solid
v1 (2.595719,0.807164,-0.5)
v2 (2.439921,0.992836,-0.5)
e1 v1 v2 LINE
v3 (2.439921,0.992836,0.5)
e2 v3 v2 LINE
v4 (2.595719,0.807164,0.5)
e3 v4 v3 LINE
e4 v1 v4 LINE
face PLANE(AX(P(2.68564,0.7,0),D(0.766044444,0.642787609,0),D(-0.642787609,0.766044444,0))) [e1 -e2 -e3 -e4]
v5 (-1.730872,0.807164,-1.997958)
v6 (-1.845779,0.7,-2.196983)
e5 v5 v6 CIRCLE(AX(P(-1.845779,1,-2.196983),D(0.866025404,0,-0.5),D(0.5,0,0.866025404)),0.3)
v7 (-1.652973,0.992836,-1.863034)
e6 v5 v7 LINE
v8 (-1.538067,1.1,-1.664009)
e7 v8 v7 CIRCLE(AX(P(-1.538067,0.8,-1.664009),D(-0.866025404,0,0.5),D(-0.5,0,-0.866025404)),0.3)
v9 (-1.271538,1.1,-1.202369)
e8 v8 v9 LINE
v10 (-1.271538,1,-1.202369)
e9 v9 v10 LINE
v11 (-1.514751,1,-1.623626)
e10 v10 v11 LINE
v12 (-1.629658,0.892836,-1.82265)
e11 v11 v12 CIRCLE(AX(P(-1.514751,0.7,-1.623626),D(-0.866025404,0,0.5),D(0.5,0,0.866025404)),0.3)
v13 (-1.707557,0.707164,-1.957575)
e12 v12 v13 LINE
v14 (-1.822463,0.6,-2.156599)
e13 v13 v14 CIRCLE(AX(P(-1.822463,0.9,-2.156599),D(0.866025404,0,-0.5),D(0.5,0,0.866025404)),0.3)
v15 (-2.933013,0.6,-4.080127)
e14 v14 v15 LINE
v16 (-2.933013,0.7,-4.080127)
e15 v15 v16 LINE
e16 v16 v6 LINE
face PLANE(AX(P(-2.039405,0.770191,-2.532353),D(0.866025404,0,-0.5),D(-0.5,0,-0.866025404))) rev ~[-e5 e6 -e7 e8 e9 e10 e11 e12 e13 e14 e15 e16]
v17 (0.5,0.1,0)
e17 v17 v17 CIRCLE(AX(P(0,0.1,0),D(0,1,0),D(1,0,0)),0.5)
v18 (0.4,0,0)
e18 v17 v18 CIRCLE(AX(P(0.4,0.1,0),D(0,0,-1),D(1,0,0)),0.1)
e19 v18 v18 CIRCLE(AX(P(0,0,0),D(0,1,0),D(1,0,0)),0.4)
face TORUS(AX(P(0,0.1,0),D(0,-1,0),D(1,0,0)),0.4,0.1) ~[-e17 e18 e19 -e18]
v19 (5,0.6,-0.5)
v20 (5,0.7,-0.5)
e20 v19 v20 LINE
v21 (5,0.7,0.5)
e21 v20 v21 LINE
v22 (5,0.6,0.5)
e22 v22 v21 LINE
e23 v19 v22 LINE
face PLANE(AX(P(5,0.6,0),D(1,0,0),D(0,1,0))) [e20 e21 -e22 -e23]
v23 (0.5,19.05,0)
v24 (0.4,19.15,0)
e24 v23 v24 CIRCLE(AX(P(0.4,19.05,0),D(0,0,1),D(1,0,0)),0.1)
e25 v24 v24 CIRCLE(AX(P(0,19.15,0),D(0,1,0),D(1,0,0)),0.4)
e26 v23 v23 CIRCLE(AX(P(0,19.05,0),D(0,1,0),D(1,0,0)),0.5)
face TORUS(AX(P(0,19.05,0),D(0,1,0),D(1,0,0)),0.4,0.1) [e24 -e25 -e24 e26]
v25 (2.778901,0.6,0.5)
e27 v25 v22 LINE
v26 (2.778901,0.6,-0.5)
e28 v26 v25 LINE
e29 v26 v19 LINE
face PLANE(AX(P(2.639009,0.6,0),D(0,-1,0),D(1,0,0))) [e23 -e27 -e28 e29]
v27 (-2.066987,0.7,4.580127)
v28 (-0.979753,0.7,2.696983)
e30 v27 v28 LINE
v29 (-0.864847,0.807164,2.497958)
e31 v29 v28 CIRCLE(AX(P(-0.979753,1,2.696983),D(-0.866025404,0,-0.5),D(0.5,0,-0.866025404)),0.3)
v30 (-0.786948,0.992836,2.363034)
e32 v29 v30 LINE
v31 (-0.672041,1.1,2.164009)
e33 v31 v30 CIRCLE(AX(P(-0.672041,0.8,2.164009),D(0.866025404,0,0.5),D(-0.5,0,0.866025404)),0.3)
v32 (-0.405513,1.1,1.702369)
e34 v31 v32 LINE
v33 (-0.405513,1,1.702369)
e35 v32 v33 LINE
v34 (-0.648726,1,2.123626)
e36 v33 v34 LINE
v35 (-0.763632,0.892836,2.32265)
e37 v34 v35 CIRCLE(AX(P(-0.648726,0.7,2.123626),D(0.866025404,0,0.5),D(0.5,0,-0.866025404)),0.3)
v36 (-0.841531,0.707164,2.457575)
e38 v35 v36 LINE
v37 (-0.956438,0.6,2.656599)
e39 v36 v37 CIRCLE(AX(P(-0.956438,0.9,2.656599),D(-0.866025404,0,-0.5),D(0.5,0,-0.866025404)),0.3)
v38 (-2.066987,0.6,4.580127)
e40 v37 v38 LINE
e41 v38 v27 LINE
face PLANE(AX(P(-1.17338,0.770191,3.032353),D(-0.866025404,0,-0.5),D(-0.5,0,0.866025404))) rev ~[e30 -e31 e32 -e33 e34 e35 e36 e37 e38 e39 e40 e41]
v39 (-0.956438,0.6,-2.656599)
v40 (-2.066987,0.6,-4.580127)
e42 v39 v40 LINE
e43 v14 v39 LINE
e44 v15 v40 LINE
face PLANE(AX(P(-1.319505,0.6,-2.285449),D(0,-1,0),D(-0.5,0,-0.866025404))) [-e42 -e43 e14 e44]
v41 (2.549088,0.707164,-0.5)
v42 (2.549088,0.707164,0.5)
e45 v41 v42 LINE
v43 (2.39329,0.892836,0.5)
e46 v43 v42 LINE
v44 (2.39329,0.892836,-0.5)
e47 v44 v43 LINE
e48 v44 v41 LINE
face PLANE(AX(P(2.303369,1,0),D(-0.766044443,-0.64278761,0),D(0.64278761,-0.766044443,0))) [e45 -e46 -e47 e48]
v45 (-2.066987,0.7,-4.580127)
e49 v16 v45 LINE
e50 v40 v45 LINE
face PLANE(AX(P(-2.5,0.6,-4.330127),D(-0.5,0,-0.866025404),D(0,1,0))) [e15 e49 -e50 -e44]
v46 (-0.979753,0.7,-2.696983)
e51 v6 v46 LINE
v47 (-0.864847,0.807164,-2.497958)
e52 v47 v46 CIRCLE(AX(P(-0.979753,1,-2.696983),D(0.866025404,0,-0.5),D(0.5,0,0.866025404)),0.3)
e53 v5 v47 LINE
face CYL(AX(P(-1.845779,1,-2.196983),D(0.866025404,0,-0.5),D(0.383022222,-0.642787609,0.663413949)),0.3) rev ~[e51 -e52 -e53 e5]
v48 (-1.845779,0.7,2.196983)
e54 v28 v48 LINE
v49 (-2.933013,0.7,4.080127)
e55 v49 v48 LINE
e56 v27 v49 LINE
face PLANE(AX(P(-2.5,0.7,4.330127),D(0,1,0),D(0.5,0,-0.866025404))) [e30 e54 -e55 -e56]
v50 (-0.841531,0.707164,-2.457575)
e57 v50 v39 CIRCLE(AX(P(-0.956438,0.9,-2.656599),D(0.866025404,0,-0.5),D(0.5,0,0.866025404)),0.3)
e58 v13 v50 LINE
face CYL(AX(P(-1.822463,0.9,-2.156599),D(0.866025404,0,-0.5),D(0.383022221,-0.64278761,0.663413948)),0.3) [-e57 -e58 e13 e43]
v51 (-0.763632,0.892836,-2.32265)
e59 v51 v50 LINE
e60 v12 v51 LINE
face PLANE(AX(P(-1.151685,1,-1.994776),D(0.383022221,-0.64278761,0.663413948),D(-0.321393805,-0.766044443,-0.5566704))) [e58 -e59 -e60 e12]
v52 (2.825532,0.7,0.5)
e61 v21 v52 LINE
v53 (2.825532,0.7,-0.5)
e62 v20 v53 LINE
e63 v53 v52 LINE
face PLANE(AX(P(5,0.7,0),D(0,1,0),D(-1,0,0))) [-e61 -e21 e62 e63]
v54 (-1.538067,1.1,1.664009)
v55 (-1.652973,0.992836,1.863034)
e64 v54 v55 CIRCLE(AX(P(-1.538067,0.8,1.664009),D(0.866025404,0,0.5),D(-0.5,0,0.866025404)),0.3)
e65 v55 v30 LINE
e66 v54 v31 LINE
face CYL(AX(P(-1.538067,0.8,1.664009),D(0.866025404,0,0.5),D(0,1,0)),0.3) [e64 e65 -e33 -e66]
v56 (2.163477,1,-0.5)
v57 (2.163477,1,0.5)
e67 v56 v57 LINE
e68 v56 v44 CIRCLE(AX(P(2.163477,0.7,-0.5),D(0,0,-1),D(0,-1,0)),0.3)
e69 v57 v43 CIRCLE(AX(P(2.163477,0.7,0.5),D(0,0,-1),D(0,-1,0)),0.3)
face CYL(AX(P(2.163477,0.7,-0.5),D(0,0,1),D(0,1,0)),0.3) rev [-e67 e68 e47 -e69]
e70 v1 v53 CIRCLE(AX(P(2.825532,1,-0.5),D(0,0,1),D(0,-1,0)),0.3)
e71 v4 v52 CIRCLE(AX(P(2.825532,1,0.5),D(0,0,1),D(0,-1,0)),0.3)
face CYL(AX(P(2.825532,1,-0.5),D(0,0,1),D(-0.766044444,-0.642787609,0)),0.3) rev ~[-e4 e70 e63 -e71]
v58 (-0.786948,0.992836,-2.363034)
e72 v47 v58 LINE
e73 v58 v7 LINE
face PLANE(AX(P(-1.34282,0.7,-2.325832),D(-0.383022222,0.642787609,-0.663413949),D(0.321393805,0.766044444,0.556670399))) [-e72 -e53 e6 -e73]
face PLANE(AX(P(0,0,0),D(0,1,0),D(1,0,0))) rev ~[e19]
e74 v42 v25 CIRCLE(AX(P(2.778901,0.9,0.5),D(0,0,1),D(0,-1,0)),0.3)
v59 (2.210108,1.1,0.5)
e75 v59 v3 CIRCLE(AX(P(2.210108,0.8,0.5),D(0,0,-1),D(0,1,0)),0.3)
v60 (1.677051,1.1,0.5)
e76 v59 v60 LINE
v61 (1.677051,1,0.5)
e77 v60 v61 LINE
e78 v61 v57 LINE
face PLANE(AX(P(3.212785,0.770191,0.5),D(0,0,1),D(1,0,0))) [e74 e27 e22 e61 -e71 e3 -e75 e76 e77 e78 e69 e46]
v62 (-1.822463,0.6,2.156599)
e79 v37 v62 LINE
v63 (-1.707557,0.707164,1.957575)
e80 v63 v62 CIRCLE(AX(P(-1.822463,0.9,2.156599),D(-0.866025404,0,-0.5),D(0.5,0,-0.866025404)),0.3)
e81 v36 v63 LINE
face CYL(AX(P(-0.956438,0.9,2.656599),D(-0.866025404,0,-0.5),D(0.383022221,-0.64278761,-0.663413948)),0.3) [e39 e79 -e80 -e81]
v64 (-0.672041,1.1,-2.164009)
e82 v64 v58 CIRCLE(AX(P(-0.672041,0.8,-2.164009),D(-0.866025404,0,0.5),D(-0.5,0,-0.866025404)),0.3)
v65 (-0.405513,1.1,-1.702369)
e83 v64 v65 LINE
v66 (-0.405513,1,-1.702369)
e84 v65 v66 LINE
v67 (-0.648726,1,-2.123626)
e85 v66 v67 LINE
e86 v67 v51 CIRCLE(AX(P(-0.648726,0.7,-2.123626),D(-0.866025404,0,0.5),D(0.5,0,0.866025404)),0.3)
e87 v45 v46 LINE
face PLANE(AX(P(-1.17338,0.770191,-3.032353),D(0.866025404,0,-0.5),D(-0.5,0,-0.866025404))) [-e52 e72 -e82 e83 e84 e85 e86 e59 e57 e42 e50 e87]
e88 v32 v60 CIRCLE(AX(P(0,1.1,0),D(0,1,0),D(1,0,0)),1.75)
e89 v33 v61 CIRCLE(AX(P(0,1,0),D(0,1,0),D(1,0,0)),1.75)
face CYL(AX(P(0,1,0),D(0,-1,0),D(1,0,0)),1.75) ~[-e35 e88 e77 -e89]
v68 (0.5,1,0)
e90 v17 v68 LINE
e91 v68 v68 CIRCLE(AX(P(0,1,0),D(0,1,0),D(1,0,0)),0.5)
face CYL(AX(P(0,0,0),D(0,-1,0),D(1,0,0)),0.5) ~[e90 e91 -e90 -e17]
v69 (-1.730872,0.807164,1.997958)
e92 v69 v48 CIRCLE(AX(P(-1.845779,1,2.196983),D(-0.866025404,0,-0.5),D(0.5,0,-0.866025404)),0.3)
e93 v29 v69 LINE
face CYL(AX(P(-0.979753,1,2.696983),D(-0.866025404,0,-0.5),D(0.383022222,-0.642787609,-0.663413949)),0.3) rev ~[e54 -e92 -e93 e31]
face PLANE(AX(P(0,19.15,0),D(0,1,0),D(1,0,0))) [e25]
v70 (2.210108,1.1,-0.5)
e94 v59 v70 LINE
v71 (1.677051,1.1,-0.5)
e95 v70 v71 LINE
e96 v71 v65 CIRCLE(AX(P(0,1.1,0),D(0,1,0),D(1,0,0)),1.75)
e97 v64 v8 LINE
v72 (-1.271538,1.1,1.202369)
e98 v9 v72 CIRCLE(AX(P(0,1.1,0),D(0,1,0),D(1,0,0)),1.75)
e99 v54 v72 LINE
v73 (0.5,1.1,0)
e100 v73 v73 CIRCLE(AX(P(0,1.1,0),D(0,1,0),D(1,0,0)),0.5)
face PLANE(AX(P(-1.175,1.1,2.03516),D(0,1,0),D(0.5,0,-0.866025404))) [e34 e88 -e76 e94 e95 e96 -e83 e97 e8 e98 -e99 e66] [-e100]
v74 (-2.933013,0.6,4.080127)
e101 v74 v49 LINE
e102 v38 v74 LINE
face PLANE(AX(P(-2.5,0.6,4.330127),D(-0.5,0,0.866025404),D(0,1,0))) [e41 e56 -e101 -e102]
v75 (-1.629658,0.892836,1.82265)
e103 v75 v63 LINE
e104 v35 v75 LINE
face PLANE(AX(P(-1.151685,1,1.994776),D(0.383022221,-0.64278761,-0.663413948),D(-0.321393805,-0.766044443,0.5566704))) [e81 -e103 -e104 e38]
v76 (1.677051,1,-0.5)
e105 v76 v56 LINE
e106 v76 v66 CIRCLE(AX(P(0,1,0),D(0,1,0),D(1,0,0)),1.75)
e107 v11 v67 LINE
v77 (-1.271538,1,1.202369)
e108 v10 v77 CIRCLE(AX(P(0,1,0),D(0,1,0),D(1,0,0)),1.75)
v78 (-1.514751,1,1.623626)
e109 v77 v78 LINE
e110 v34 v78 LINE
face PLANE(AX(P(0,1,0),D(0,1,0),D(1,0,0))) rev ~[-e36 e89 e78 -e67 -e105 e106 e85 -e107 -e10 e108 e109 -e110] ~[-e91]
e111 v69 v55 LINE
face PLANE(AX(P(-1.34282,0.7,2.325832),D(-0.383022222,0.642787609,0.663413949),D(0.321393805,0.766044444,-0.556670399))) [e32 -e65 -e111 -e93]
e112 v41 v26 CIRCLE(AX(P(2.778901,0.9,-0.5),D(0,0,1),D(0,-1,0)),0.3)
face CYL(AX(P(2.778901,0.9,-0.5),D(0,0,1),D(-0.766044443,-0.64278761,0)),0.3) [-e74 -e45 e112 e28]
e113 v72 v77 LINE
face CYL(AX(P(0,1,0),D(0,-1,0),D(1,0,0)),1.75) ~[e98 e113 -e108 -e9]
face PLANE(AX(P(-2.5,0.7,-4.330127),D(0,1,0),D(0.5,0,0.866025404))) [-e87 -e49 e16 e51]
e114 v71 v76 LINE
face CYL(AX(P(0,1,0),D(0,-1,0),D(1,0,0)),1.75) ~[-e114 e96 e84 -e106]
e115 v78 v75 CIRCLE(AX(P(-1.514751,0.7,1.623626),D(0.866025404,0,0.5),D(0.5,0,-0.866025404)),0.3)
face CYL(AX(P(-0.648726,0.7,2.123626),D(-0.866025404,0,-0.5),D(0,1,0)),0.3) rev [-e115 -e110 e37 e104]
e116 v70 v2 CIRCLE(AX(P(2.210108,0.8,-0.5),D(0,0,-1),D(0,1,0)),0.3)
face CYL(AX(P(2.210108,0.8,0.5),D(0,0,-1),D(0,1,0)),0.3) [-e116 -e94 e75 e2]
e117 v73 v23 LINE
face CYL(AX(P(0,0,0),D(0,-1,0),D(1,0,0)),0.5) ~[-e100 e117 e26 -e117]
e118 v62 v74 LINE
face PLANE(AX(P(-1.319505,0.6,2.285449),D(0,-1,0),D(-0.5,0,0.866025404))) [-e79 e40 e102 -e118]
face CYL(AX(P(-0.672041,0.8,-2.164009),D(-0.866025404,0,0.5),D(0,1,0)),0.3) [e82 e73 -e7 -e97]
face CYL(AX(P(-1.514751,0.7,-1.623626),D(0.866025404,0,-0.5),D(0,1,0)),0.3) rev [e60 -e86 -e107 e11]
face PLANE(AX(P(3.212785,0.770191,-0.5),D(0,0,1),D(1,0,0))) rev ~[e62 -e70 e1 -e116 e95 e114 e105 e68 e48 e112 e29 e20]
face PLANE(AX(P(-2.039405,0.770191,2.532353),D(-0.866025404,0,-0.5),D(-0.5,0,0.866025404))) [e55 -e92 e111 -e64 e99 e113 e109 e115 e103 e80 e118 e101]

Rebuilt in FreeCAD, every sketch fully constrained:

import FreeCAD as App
import Part
import Sketcher
Q = App.Units.Quantity


def edges_at(feature, points):
    """Names of the edges that pass closest to the given points."""
    edges = feature.Shape.Edges
    near = lambda p: min(range(len(edges)), key=lambda i: edges[i].distToShape(Part.Vertex(*p))[0])
    return sorted({f"Edge{near(p) + 1}" for p in points})


def add_polygon(sketch, points):
    """Adds a closed chain of lines whose ends are joined by coincident constraints."""
    first, n = sketch.GeometryCount, len(points)
    for a, b in zip(points, points[1:] + points[:1]):
        sketch.addGeometry(Part.LineSegment(App.Vector(*a, 0), App.Vector(*b, 0)), False)
    for i in range(n):
        sketch.addConstraint(Sketcher.Constraint("Coincident", first + i, 2, first + (i + 1) % n, 1))

doc = App.newDocument("Part")
params = doc.addObject("Spreadsheet::Sheet", "Params")
for row, (alias, value) in enumerate([
    ("sketch1_diameter", "1 mm"),
    ("pad1_length", "19.15 mm"),
    ("sketch2_diameter", "1 mm"),
    ("sketch2_diameter2", "3.5 mm"),
    ("pad2_length", "0.1 mm"),
    ("sketch3_height", "0.1 mm"),
    ("sketch3_width", "0.85 mm"),
    ("pad3_length", "1 mm"),
    ("fillet_radius", "0.3 mm"),
    ("fillet2_radius", "0.1 mm"),
], start=1):
    params.set(f"A{row}", alias)
    params.set(f"B{row}", "=" + value)
    params.setAlias(f"B{row}", alias)

body = doc.addObject("PartDesign::Body", "Body")

sketch1 = body.newObject("Sketcher::SketchObject", "Sketch")
sketch1.AttachmentSupport = (doc.getObject("XZ_Plane"), [""])
sketch1.MapMode = "FlatFace"
sketch1.addGeometry(Part.Circle(App.Vector(0, 0, 0), App.Vector(0, 0, 1), 0.5), False)
sketch1.addConstraint([
    Sketcher.Constraint("Coincident", 0, 3, -1, 1),
    Sketcher.Constraint("Diameter", 0, Q("1 mm")),
])
sketch1.setExpression("Constraints[1]", "Params.sketch1_diameter")
pad1 = body.newObject("PartDesign::Pad", "Pad")
pad1.Profile = sketch1
pad1.setExpression("Length", "Params.pad1_length")
pad1.Reversed = True

sketch2 = body.newObject("Sketcher::SketchObject", "Sketch001")
sketch2.AttachmentSupport = (doc.getObject("XZ_Plane"), [""])
sketch2.MapMode = "FlatFace"
sketch2.AttachmentOffset = App.Placement(App.Vector(0, 0, -1), App.Rotation())
sketch2.addGeometry([
    Part.Circle(App.Vector(0, 0, 0), App.Vector(0, 0, 1), 1.8),
    Part.Circle(App.Vector(0, 0, 0), App.Vector(0, 0, 1), 0.5),
], False)
sketch2.addConstraint([
    Sketcher.Constraint("Coincident", 0, 3, -1, 1),
    Sketcher.Constraint("Coincident", 1, 3, -1, 1),
    Sketcher.Constraint("Diameter", 1, Q("1 mm")),
    Sketcher.Constraint("Diameter", 0, Q("3.5 mm")),
])
sketch2.setExpression("Constraints[2]", "Params.sketch2_diameter")
sketch2.setExpression("Constraints[3]", "Params.sketch2_diameter2")
pad2 = body.newObject("PartDesign::Pad", "Pad001")
pad2.Profile = sketch2
pad2.setExpression("Length", "Params.pad2_length")
pad2.Reversed = True

sketch3 = body.newObject("Sketcher::SketchObject", "Sketch002")
sketch3.AttachmentSupport = (doc.getObject("XY_Plane"), [""])
sketch3.MapMode = "FlatFace"
add_polygon(sketch3, [(1.5, 1), (2.3, 1), (2.64, 0.6), (5, 0.6), (5, 0.7), (2.69, 0.7), (2.35, 1.1), (1.5, 1.1)])
sketch3.addConstraint([
    Sketcher.Constraint("Horizontal", 0),
    Sketcher.Constraint("Horizontal", 2),
    Sketcher.Constraint("Vertical", 3),
    Sketcher.Constraint("Horizontal", 4),
    Sketcher.Constraint("Horizontal", 6),
    Sketcher.Constraint("Vertical", 7),
    Sketcher.Constraint("Parallel", 1, 5),
    Sketcher.Constraint("Equal", 3, 7),
    Sketcher.Constraint("Angle", 1, Q("-50 deg")),
    Sketcher.Constraint("DistanceY", 3, 1, 3, 2, Q("0.1 mm")),
    Sketcher.Constraint("DistanceY", -1, 1, 0, 2, Q("1 mm")),
    Sketcher.Constraint("DistanceX", -1, 1, 2, 2, Q("5 mm")),
    Sketcher.Constraint("DistanceX", 6, 2, 6, 1, Q("0.85 mm")),
    Sketcher.Constraint("DistanceY", -1, 1, 1, 2, Q("0.6 mm")),
    Sketcher.Constraint("DistanceX", -1, 1, 6, 2, Q("1.5 mm")),
    Sketcher.Constraint("DistanceX", 0, 1, 0, 2, Q("0.803369 mm")),
])
sketch3.setExpression("Constraints[17]", "Params.sketch3_height")
sketch3.setExpression("Constraints[20]", "Params.sketch3_width")
pad3 = body.newObject("PartDesign::Pad", "Pad002")
pad3.Profile = sketch3
pad3.setExpression("Length", "Params.pad3_length")
pad3.Midplane = True
doc.recompute()

polarpattern = body.newObject("PartDesign::PolarPattern", "PolarPattern")
polarpattern.Originals = [pad3]
polarpattern.Axis = (doc.getObject("Y_Axis"), [""])
polarpattern.Angle = 360
polarpattern.Occurrences = 3
body.Tip = polarpattern
doc.recompute()

fillet = body.newObject("PartDesign::Fillet", "Fillet")
fillet.Base = (polarpattern, edges_at(polarpattern, [
    (2.303, 1, 0),
    (2.639, 0.6, 0),
    (2.686, 0.7, 0),
    (2.35, 1.1, 0),
    (-1.152, 1, -1.995),
    (-1.32, 0.6, -2.285),
    (-1.343, 0.7, -2.326),
    (-1.175, 1.1, -2.035),
    (-1.152, 1, 1.995),
    (-1.32, 0.6, 2.285),
    (-1.343, 0.7, 2.326),
    (-1.175, 1.1, 2.035),
]))
fillet.setExpression("Radius", "Params.fillet_radius")
doc.recompute()

fillet2 = body.newObject("PartDesign::Fillet", "Fillet001")
fillet2.Base = (fillet, edges_at(fillet, [(-0.5, 0, 0), (-0.5, 19.15, 0)]))
fillet2.setExpression("Radius", "Params.fillet2_radius")

doc.recompute()
